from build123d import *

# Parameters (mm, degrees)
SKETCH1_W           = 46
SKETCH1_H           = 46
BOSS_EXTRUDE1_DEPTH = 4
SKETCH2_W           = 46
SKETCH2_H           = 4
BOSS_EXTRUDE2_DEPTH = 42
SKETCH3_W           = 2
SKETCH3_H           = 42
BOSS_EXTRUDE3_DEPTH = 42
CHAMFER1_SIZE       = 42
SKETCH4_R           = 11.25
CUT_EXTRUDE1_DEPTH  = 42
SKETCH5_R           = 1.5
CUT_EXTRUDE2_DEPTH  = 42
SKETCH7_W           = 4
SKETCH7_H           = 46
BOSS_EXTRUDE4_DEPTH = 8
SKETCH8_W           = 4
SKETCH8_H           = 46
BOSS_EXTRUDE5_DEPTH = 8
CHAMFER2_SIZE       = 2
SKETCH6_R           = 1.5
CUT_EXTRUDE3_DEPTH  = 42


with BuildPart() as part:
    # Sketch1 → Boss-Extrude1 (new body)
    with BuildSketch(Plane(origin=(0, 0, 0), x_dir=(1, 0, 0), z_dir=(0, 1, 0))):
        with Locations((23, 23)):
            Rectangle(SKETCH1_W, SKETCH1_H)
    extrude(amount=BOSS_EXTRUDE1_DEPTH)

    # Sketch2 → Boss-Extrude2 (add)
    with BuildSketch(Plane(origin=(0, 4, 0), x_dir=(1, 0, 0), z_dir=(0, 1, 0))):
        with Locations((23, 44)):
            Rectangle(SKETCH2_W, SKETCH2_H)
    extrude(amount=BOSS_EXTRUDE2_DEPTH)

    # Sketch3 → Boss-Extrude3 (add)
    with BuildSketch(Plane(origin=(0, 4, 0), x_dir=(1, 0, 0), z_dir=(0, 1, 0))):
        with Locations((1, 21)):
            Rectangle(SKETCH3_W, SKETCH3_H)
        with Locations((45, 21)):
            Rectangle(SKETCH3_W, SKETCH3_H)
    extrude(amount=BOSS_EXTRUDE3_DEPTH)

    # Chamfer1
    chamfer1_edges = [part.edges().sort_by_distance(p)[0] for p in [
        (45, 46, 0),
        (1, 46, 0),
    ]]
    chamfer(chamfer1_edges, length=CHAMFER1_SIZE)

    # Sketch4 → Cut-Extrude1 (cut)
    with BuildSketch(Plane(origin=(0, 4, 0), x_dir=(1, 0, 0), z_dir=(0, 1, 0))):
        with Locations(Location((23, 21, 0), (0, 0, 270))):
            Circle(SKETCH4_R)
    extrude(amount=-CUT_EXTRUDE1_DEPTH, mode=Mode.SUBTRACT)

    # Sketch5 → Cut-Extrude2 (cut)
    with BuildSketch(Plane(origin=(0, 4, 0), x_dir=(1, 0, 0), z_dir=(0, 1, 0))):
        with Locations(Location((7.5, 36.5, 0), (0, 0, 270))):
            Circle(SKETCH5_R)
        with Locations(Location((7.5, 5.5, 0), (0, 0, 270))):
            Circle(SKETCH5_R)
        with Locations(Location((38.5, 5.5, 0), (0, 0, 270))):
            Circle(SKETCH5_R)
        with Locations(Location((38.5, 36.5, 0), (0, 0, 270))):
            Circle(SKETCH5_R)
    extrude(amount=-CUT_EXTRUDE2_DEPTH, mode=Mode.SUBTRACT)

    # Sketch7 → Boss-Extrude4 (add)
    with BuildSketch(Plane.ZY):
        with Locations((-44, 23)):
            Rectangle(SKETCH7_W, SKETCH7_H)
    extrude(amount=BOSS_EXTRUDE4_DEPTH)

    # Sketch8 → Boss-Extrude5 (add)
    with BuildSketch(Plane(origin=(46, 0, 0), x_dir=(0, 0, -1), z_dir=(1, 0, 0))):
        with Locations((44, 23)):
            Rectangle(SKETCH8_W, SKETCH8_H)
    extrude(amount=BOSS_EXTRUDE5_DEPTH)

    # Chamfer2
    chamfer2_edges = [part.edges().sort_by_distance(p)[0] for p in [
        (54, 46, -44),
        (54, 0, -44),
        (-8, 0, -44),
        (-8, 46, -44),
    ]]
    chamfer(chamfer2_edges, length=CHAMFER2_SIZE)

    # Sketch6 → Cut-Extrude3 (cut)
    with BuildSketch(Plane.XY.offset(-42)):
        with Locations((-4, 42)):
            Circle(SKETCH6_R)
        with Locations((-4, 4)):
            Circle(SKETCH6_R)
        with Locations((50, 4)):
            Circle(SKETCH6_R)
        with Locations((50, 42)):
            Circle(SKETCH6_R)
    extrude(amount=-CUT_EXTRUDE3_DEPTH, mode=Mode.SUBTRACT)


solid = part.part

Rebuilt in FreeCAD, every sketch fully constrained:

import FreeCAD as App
import Part
import Sketcher
from FreeCAD import Vector


def edges_at(feature, points):
    """Names of the edges that pass closest to the given points."""
    edges = feature.Shape.Edges
    near = lambda p: min(range(len(edges)), key=lambda i: edges[i].distToShape(Part.Vertex(*p))[0])
    return sorted({f"Edge{near(p) + 1}" for p in points})

doc = App.newDocument("Part")
body = doc.addObject("PartDesign::Body", "Body")

sketch1 = body.newObject("Sketcher::SketchObject", "Sketch")
sketch1.AttachmentSupport = (doc.getObject("XZ_Plane"), [""])
sketch1.MapMode = "FlatFace"
sketch1.addGeometry([
    Part.LineSegment(Vector(0, -46, 0), Vector(0, 0, 0)),
    Part.LineSegment(Vector(0, 0, 0), Vector(46, 0, 0)),
    Part.LineSegment(Vector(46, 0, 0), Vector(46, -46, 0)),
    Part.LineSegment(Vector(46, -46, 0), Vector(0, -46, 0)),
], False)
sketch1.addConstraint([
    Sketcher.Constraint("Coincident", 0, 2, 1, 1),
    Sketcher.Constraint("Coincident", 1, 2, 2, 1),
    Sketcher.Constraint("Coincident", 2, 2, 3, 1),
    Sketcher.Constraint("Coincident", 3, 2, 0, 1),
    Sketcher.Constraint("Vertical", 0),
    Sketcher.Constraint("Horizontal", 1),
    Sketcher.Constraint("Vertical", 2),
    Sketcher.Constraint("Horizontal", 3),
    Sketcher.Constraint("Coincident", 0, 2, -1, 1),
    Sketcher.Constraint("Equal", 3, 0),
    Sketcher.Constraint("DistanceX", 1, 1, 1, 2, 46.0),
])
pad1 = body.newObject("PartDesign::Pad", "Pad")
pad1.Profile = sketch1
pad1.Length = 4
pad1.Reversed = True

sketch2 = body.newObject("Sketcher::SketchObject", "Sketch001")
sketch2.AttachmentSupport = (doc.getObject("XZ_Plane"), [""])
sketch2.MapMode = "FlatFace"
sketch2.AttachmentOffset = App.Placement(Vector(0, 0, -4), App.Rotation())
sketch2.addGeometry([
    Part.LineSegment(Vector(0, -46, 0), Vector(0, -42, 0)),
    Part.LineSegment(Vector(0, -42, 0), Vector(46, -42, 0)),
    Part.LineSegment(Vector(46, -42, 0), Vector(46, -46, 0)),
    Part.LineSegment(Vector(46, -46, 0), Vector(0, -46, 0)),
], False)
sketch2.addConstraint([
    Sketcher.Constraint("Coincident", 0, 2, 1, 1),
    Sketcher.Constraint("Coincident", 1, 2, 2, 1),
    Sketcher.Constraint("Coincident", 2, 2, 3, 1),
    Sketcher.Constraint("Coincident", 3, 2, 0, 1),
    Sketcher.Constraint("Vertical", 0),
    Sketcher.Constraint("Horizontal", 1),
    Sketcher.Constraint("Vertical", 2),
    Sketcher.Constraint("Horizontal", 3),
    Sketcher.Constraint("PointOnObject", 0, 2, -2),
    Sketcher.Constraint("DistanceX", 1, 1, 1, 2, 46.0),
    Sketcher.Constraint("DistanceY", 0, 1, 0, 2, 4.0),
    Sketcher.Constraint("DistanceY", 0, 2, -1, 1, 42.0),
])
pad2 = body.newObject("PartDesign::Pad", "Pad001")
pad2.Profile = sketch2
pad2.Length = 42
pad2.Reversed = True

sketch3 = body.newObject("Sketcher::SketchObject", "Sketch002")
sketch3.AttachmentSupport = (doc.getObject("XZ_Plane"), [""])
sketch3.MapMode = "FlatFace"
sketch3.AttachmentOffset = App.Placement(Vector(0, 0, -4), App.Rotation())
sketch3.addGeometry([
    Part.LineSegment(Vector(0, -42, 0), Vector(0, 0, 0)),
    Part.LineSegment(Vector(0, 0, 0), Vector(2, 0, 0)),
    Part.LineSegment(Vector(2, 0, 0), Vector(2, -42, 0)),
    Part.LineSegment(Vector(2, -42, 0), Vector(0, -42, 0)),
    Part.LineSegment(Vector(44, -42, 0), Vector(44, 0, 0)),
    Part.LineSegment(Vector(44, 0, 0), Vector(46, 0, 0)),
    Part.LineSegment(Vector(46, 0, 0), Vector(46, -42, 0)),
    Part.LineSegment(Vector(46, -42, 0), Vector(44, -42, 0)),
], False)
sketch3.addConstraint([
    Sketcher.Constraint("Coincident", 0, 2, 1, 1),
    Sketcher.Constraint("Coincident", 1, 2, 2, 1),
    Sketcher.Constraint("Coincident", 2, 2, 3, 1),
    Sketcher.Constraint("Coincident", 3, 2, 0, 1),
    Sketcher.Constraint("Coincident", 4, 2, 5, 1),
    Sketcher.Constraint("Coincident", 5, 2, 6, 1),
    Sketcher.Constraint("Coincident", 6, 2, 7, 1),
    Sketcher.Constraint("Coincident", 7, 2, 4, 1),
    Sketcher.Constraint("Vertical", 0),
    Sketcher.Constraint("Horizontal", 1),
    Sketcher.Constraint("Vertical", 2),
    Sketcher.Constraint("Horizontal", 3),
    Sketcher.Constraint("Vertical", 4),
    Sketcher.Constraint("Horizontal", 5),
    Sketcher.Constraint("Vertical", 6),
    Sketcher.Constraint("Horizontal", 7),
    Sketcher.Constraint("Coincident", 0, 2, -1, 1),
    Sketcher.Constraint("PointOnObject", 4, 2, -1),
    Sketcher.Constraint("Horizontal", 3, 2, 6, 2),
    Sketcher.Constraint("Equal", 3, 5),
    Sketcher.Constraint("DistanceX", 1, 1, 1, 2, 2.0),
    Sketcher.Constraint("DistanceY", 0, 1, 0, 2, 42.0),
    Sketcher.Constraint("DistanceX", -1, 1, 4, 2, 44.0),
])
pad3 = body.newObject("PartDesign::Pad", "Pad002")
pad3.Profile = sketch3
pad3.Length = 42
pad3.Reversed = True
doc.recompute()

chamfer = body.newObject("PartDesign::Chamfer", "Chamfer")
chamfer.Base = (pad3, edges_at(pad3, [(45, 46, 0), (1, 46, 0)]))
chamfer.Size = 42

sketch4 = body.newObject("Sketcher::SketchObject", "Sketch003")
sketch4.AttachmentSupport = (doc.getObject("XZ_Plane"), [""])
sketch4.MapMode = "FlatFace"
sketch4.AttachmentOffset = App.Placement(Vector(0, 0, -4), App.Rotation())
sketch4.addGeometry(Part.Circle(Vector(23, -21, 0), Vector(0, 0, 1), 11), False)
sketch4.addConstraint([
    Sketcher.Constraint("Diameter", 0, 22.5),
    Sketcher.Constraint("DistanceX", -1, 1, 0, 3, 23.0),
    Sketcher.Constraint("DistanceY", 0, 3, -1, 1, 21.0),
])
pocket1 = body.newObject("PartDesign::Pocket", "Pocket")
pocket1.Profile = sketch4
pocket1.Length = 42
pocket1.Reversed = True

sketch5 = body.newObject("Sketcher::SketchObject", "Sketch004")
sketch5.AttachmentSupport = (doc.getObject("XZ_Plane"), [""])
sketch5.MapMode = "FlatFace"
sketch5.AttachmentOffset = App.Placement(Vector(0, 0, -4), App.Rotation())
sketch5.addGeometry([
    Part.Circle(Vector(7.5, -36.5, 0), Vector(0, 0, 1), 1.5),
    Part.Circle(Vector(7.5, -5.5, 0), Vector(0, 0, 1), 1.5),
    Part.Circle(Vector(38.5, -5.5, 0), Vector(0, 0, 1), 1.5),
    Part.Circle(Vector(38.5, -36.5, 0), Vector(0, 0, 1), 1.5),
], False)
sketch5.addConstraint([
    Sketcher.Constraint("Equal", 0, 1),
    Sketcher.Constraint("Equal", 1, 2),
    Sketcher.Constraint("Equal", 2, 3),
    Sketcher.Constraint("Horizontal", 1, 3, 2, 3),
    Sketcher.Constraint("Horizontal", 0, 3, 3, 3),
    Sketcher.Constraint("Vertical", 0, 3, 1, 3),
    Sketcher.Constraint("Vertical", 2, 3, 3, 3),
    Sketcher.Constraint("Diameter", 0, 3.0),
    Sketcher.Constraint("DistanceY", 0, 3, 1, 3, 31.0),
    Sketcher.Constraint("DistanceX", 1, 3, 2, 3, 31.0),
    Sketcher.Constraint("DistanceX", -1, 1, 0, 3, 7.5),
    Sketcher.Constraint("DistanceY", 0, 3, -1, 1, 36.5),
])
pocket2 = body.newObject("PartDesign::Pocket", "Pocket001")
pocket2.Profile = sketch5
pocket2.Length = 42
pocket2.Reversed = True

sketch6 = body.newObject("Sketcher::SketchObject", "Sketch005")
sketch6.AttachmentSupport = (doc.getObject("YZ_Plane"), [""])
sketch6.MapMode = "FlatFace"
sketch6.addGeometry([
    Part.LineSegment(Vector(46, -46, 0), Vector(0, -46, 0)),
    Part.LineSegment(Vector(0, -46, 0), Vector(0, -42, 0)),
    Part.LineSegment(Vector(0, -42, 0), Vector(46, -42, 0)),
    Part.LineSegment(Vector(46, -42, 0), Vector(46, -46, 0)),
], False)
sketch6.addConstraint([
    Sketcher.Constraint("Coincident", 0, 2, 1, 1),
    Sketcher.Constraint("Coincident", 1, 2, 2, 1),
    Sketcher.Constraint("Coincident", 2, 2, 3, 1),
    Sketcher.Constraint("Coincident", 3, 2, 0, 1),
    Sketcher.Constraint("Horizontal", 0),
    Sketcher.Constraint("Vertical", 1),
    Sketcher.Constraint("Horizontal", 2),
    Sketcher.Constraint("Vertical", 3),
    Sketcher.Constraint("PointOnObject", 0, 2, -2),
    Sketcher.Constraint("DistanceX", 0, 2, 0, 1, 46.0),
    Sketcher.Constraint("DistanceY", 1, 1, 1, 2, 4.0),
    Sketcher.Constraint("DistanceY", 0, 2, -1, 1, 46.0),
])
pad4 = body.newObject("PartDesign::Pad", "Pad003")
pad4.Profile = sketch6
pad4.Length = 8
pad4.Reversed = True

sketch7 = body.newObject("Sketcher::SketchObject", "Sketch006")
sketch7.AttachmentSupport = (doc.getObject("YZ_Plane"), [""])
sketch7.MapMode = "FlatFace"
sketch7.AttachmentOffset = App.Placement(Vector(0, 0, 46), App.Rotation())
sketch7.addGeometry([
    Part.LineSegment(Vector(46, -42, 0), Vector(0, -42, 0)),
    Part.LineSegment(Vector(0, -42, 0), Vector(0, -46, 0)),
    Part.LineSegment(Vector(0, -46, 0), Vector(46, -46, 0)),
    Part.LineSegment(Vector(46, -46, 0), Vector(46, -42, 0)),
], False)
sketch7.addConstraint([
    Sketcher.Constraint("Coincident", 0, 2, 1, 1),
    Sketcher.Constraint("Coincident", 1, 2, 2, 1),
    Sketcher.Constraint("Coincident", 2, 2, 3, 1),
    Sketcher.Constraint("Coincident", 3, 2, 0, 1),
    Sketcher.Constraint("Horizontal", 0),
    Sketcher.Constraint("Vertical", 1),
    Sketcher.Constraint("Horizontal", 2),
    Sketcher.Constraint("Vertical", 3),
    Sketcher.Constraint("PointOnObject", 0, 2, -2),
    Sketcher.Constraint("DistanceX", 0, 2, 0, 1, 46.0),
    Sketcher.Constraint("DistanceY", 1, 2, 1, 1, 4.0),
    Sketcher.Constraint("DistanceY", 0, 2, -1, 1, 42.0),
])
pad5 = body.newObject("PartDesign::Pad", "Pad004")
pad5.Profile = sketch7
pad5.Length = 8
doc.recompute()

chamfer2 = body.newObject("PartDesign::Chamfer", "Chamfer001")
chamfer2.Base = (pad5, edges_at(pad5, [
    (54, 46, -44),
    (54, 0, -44),
    (-8, 0, -44),
    (-8, 46, -44),
]))
chamfer2.Size = 2

sketch8 = body.newObject("Sketcher::SketchObject", "Sketch007")
sketch8.AttachmentSupport = (doc.getObject("XY_Plane"), [""])
sketch8.MapMode = "FlatFace"
sketch8.AttachmentOffset = App.Placement(Vector(0, 0, -42), App.Rotation())
sketch8.addGeometry([
    Part.Circle(Vector(-4, 42, 0), Vector(0, 0, 1), 1.5),
    Part.Circle(Vector(-4, 4, 0), Vector(0, 0, 1), 1.5),
    Part.Circle(Vector(50, 4, 0), Vector(0, 0, 1), 1.5),
    Part.Circle(Vector(50, 42, 0), Vector(0, 0, 1), 1.5),
], False)
sketch8.addConstraint([
    Sketcher.Constraint("Equal", 0, 1),
    Sketcher.Constraint("Equal", 1, 2),
    Sketcher.Constraint("Equal", 2, 3),
    Sketcher.Constraint("Horizontal", 1, 3, 2, 3),
    Sketcher.Constraint("Horizontal", 0, 3, 3, 3),
    Sketcher.Constraint("Vertical", 0, 3, 1, 3),
    Sketcher.Constraint("Vertical", 2, 3, 3, 3),
    Sketcher.Constraint("Diameter", 0, 3.0),
    Sketcher.Constraint("DistanceX", 0, 3, -1, 1, 4.0),
    Sketcher.Constraint("DistanceY", -1, 1, 0, 3, 42.0),
    Sketcher.Constraint("DistanceY", -1, 1, 1, 3, 4.0),
    Sketcher.Constraint("DistanceX", -1, 1, 2, 3, 50.0),
])
pocket3 = body.newObject("PartDesign::Pocket", "Pocket002")
pocket3.Profile = sketch8
pocket3.Length = 42

doc.recompute()
